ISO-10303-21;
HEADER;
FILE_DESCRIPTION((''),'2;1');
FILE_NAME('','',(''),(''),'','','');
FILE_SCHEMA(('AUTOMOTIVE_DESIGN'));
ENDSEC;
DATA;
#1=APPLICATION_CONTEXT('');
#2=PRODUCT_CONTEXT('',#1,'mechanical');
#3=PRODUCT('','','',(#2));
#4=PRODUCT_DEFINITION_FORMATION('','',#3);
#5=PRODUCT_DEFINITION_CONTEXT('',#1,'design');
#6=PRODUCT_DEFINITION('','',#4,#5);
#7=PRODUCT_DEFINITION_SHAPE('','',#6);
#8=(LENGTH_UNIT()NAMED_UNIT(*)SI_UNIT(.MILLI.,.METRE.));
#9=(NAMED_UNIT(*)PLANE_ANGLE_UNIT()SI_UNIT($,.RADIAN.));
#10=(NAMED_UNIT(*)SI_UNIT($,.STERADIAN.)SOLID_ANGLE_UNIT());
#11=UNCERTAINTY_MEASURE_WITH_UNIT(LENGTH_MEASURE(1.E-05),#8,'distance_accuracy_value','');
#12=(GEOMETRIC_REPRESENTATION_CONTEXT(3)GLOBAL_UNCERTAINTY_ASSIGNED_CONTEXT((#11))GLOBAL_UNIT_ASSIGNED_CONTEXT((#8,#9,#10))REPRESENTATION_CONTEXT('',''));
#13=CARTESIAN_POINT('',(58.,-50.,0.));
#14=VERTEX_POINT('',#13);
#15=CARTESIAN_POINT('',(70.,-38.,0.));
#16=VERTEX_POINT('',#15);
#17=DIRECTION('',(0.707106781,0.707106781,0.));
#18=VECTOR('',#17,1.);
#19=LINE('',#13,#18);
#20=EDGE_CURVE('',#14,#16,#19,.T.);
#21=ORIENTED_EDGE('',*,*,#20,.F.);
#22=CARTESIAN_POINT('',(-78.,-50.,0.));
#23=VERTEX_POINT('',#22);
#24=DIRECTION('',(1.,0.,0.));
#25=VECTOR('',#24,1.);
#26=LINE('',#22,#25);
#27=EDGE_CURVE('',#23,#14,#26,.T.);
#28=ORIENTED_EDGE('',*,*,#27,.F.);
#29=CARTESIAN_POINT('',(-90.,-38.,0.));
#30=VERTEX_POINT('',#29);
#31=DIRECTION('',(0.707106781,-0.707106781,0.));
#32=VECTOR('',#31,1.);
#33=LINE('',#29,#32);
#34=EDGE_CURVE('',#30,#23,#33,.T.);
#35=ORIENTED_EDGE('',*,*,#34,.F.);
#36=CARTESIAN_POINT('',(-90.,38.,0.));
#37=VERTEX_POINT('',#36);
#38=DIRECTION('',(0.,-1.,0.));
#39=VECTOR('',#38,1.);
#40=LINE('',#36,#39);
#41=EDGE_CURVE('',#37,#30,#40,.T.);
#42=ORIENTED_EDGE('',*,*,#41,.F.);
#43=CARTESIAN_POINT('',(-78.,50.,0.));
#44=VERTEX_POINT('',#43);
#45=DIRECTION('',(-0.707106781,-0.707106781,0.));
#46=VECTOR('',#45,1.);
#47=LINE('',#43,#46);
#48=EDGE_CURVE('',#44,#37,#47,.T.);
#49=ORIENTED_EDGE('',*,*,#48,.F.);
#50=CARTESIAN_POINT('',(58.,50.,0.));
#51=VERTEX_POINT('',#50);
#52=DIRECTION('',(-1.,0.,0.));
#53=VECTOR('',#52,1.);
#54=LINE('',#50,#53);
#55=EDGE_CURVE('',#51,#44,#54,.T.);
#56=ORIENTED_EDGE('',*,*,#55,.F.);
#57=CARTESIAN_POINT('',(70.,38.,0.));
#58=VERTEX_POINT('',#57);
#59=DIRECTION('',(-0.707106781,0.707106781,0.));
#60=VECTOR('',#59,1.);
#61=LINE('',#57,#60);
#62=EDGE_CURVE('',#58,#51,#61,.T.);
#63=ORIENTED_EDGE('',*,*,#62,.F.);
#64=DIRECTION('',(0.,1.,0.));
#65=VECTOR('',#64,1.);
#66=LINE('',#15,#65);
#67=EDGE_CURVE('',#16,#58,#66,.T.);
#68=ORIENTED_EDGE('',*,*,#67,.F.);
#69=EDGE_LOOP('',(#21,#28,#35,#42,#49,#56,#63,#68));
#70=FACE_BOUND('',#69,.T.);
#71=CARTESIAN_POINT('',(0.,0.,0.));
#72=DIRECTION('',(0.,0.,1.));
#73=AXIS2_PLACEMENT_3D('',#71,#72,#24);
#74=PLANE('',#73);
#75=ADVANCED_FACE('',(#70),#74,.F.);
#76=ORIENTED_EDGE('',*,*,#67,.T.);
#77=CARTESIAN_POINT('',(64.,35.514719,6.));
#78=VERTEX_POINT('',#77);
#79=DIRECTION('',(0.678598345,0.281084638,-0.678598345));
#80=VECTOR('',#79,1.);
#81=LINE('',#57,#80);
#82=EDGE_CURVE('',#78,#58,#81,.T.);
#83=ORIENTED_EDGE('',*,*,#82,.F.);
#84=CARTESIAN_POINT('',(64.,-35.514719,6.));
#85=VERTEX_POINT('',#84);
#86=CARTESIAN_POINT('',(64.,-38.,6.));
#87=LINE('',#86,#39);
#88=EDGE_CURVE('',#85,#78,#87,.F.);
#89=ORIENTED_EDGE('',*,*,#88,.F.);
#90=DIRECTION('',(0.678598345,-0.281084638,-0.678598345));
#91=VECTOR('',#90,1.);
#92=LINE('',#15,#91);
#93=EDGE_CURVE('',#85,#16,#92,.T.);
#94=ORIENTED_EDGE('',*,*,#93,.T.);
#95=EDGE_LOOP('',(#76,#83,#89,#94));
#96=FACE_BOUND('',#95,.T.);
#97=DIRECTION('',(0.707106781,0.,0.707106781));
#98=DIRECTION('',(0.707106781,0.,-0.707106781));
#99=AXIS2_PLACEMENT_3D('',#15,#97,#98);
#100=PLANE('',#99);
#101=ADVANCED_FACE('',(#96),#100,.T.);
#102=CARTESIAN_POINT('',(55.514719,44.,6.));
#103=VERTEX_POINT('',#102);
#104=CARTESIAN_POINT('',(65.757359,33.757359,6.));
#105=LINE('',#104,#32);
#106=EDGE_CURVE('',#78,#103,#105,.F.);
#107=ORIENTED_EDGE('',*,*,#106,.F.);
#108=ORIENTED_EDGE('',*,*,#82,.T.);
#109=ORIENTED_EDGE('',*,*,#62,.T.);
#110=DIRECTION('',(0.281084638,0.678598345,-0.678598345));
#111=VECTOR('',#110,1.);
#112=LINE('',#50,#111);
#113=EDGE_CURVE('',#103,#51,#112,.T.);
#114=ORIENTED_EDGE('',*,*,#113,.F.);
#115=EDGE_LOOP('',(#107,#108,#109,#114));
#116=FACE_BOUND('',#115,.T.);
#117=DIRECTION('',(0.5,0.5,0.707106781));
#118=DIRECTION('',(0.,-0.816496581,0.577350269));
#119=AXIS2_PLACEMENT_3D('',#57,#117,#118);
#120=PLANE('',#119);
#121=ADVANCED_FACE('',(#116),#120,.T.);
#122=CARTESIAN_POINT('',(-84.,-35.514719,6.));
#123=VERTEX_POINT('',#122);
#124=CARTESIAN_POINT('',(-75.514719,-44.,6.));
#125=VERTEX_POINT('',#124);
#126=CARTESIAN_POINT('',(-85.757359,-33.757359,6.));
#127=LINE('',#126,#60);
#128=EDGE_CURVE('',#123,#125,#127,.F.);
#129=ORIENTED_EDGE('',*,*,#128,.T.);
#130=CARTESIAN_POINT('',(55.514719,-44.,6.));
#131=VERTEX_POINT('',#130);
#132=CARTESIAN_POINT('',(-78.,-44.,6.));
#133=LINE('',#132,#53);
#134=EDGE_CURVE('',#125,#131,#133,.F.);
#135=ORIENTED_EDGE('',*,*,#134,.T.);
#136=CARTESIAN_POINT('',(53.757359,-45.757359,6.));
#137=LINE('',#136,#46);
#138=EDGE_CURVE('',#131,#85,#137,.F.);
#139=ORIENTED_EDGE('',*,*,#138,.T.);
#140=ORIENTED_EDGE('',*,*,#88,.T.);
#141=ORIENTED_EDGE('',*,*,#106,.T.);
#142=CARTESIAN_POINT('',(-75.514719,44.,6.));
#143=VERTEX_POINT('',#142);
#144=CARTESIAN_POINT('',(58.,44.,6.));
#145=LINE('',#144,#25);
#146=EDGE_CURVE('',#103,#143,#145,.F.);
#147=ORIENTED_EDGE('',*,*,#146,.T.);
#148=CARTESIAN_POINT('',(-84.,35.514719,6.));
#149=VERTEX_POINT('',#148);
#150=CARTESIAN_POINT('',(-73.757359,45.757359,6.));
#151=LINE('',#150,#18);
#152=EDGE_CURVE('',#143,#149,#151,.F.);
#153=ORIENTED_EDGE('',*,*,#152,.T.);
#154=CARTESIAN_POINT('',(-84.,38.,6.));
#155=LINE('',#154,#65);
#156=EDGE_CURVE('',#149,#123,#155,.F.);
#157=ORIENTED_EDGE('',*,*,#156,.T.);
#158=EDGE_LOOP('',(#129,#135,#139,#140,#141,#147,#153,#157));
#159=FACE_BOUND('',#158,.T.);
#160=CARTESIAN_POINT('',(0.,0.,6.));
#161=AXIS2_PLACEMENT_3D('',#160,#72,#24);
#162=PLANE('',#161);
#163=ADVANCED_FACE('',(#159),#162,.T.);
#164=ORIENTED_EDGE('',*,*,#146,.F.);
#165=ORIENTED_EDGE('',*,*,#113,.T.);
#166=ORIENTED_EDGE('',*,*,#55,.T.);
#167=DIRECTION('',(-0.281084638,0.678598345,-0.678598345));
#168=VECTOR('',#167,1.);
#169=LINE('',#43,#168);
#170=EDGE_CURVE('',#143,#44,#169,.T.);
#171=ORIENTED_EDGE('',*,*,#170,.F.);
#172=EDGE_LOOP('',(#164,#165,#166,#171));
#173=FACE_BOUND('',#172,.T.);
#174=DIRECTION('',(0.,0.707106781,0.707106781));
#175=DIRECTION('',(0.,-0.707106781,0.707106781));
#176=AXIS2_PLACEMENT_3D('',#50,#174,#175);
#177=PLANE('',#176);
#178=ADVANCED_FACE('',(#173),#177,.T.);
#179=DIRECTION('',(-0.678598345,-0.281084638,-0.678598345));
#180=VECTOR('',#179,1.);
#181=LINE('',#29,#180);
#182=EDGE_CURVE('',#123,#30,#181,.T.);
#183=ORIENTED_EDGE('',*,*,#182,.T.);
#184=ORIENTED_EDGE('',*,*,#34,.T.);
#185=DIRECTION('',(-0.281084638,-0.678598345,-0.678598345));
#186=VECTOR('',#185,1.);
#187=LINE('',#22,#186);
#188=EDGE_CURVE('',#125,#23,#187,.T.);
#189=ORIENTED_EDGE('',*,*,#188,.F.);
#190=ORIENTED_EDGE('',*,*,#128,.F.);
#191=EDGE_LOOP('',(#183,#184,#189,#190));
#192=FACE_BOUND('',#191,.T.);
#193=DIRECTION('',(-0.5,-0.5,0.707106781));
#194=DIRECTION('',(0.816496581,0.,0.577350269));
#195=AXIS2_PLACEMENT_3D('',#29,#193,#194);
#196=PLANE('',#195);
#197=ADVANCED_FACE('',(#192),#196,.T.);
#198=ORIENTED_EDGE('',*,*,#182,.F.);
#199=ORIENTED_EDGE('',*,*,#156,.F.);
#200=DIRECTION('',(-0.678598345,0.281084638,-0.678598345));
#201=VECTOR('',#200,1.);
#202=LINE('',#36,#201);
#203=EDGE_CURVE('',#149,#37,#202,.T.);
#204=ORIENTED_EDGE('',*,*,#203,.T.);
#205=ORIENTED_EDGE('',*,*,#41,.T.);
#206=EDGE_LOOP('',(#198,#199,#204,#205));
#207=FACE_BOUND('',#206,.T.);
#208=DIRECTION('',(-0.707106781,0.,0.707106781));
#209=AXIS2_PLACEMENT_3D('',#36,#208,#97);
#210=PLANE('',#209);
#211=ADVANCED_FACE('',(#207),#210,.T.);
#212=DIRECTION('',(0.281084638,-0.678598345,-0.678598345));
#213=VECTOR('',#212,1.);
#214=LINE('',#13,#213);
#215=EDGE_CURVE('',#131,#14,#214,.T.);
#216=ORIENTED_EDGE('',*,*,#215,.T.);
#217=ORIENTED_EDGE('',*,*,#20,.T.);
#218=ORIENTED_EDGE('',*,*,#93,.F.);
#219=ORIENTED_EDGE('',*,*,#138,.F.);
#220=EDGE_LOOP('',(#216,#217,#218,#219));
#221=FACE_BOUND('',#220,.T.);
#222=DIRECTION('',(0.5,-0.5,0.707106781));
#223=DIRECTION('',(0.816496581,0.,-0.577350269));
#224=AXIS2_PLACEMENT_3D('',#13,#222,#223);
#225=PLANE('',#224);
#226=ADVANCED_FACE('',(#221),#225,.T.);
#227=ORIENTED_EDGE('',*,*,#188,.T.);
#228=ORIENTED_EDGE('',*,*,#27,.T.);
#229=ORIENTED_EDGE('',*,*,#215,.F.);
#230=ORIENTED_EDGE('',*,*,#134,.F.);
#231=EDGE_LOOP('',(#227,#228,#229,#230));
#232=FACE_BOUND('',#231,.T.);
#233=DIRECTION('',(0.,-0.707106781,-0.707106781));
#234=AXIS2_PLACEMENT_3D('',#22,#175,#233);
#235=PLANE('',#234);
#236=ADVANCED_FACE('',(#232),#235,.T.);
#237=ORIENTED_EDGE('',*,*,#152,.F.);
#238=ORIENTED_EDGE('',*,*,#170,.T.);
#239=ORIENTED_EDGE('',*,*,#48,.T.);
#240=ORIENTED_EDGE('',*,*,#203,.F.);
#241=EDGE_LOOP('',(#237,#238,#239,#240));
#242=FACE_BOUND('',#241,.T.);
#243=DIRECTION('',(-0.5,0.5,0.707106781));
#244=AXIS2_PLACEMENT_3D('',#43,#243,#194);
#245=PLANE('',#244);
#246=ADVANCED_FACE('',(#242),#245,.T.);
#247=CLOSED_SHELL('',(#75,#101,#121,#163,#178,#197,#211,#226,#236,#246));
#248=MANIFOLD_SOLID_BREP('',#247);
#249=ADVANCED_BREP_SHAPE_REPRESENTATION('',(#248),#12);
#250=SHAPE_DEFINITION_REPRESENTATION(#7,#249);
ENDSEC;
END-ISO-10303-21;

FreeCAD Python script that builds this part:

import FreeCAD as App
import Part
import Sketcher

doc = App.newDocument("Part")
body = doc.addObject("PartDesign::Body", "Body")

sketch1 = body.newObject("Sketcher::SketchObject", "Sketch")
sketch1.AttachmentSupport = (doc.getObject("XY_Plane"), [""])
sketch1.MapMode = "FlatFace"
sketch1.addGeometry(Part.LineSegment(App.Vector(-78, -50, 0), App.Vector(58, -50, 0)), False)
sketch1.addGeometry(Part.LineSegment(App.Vector(58, -50, 0), App.Vector(70, -38, 0)), False)
sketch1.addGeometry(Part.LineSegment(App.Vector(70, -38, 0), App.Vector(70, 38, 0)), False)
sketch1.addGeometry(Part.LineSegment(App.Vector(70, 38, 0), App.Vector(58, 50, 0)), False)
sketch1.addGeometry(Part.LineSegment(App.Vector(58, 50, 0), App.Vector(-78, 50, 0)), False)
sketch1.addGeometry(Part.LineSegment(App.Vector(-78, 50, 0), App.Vector(-90, 38, 0)), False)
sketch1.addGeometry(Part.LineSegment(App.Vector(-90, 38, 0), App.Vector(-90, -38, 0)), False)
sketch1.addGeometry(Part.LineSegment(App.Vector(-90, -38, 0), App.Vector(-78, -50, 0)), False)
sketch1.addConstraint(Sketcher.Constraint("Coincident", 0, 2, 1, 1))
sketch1.addConstraint(Sketcher.Constraint("Coincident", 1, 2, 2, 1))
sketch1.addConstraint(Sketcher.Constraint("Coincident", 2, 2, 3, 1))
sketch1.addConstraint(Sketcher.Constraint("Coincident", 3, 2, 4, 1))
sketch1.addConstraint(Sketcher.Constraint("Coincident", 4, 2, 5, 1))
sketch1.addConstraint(Sketcher.Constraint("Coincident", 5, 2, 6, 1))
sketch1.addConstraint(Sketcher.Constraint("Coincident", 6, 2, 7, 1))
sketch1.addConstraint(Sketcher.Constraint("Coincident", 7, 2, 0, 1))
sketch1.addConstraint(Sketcher.Constraint("Horizontal", 0))
sketch1.addConstraint(Sketcher.Constraint("Vertical", 2))
sketch1.addConstraint(Sketcher.Constraint("Horizontal", 4))
sketch1.addConstraint(Sketcher.Constraint("Vertical", 6))
sketch1.addConstraint(Sketcher.Constraint("Symmetric", 0, 2, 3, 2, -1))
sketch1.addConstraint(Sketcher.Constraint("Perpendicular", 1, 3))
sketch1.addConstraint(Sketcher.Constraint("Perpendicular", 3, 5))
sketch1.addConstraint(Sketcher.Constraint("Perpendicular", 5, 7))
sketch1.addConstraint(Sketcher.Constraint("Horizontal", 2, 2, 5, 2))
sketch1.addConstraint(Sketcher.Constraint("Horizontal", 1, 2, 6, 2))
sketch1.addConstraint(Sketcher.Constraint("Vertical", 4, 2, 7, 2))
sketch1.addConstraint(Sketcher.Constraint("DistanceX", 0, 1, 0, 2, 136.0))
sketch1.addConstraint(Sketcher.Constraint("DistanceY", 2, 1, 2, 2, 76.0))
sketch1.addConstraint(Sketcher.Constraint("DistanceX", -1, 1, 0, 2, 58.0))
sketch1.addConstraint(Sketcher.Constraint("DistanceY", 0, 2, -1, 1, 50.0))
pad1 = body.newObject("PartDesign::Pad", "Pad")
pad1.Profile = sketch1
pad1.Length = 6
pad1.TaperAngle = -45

doc.recompute()
